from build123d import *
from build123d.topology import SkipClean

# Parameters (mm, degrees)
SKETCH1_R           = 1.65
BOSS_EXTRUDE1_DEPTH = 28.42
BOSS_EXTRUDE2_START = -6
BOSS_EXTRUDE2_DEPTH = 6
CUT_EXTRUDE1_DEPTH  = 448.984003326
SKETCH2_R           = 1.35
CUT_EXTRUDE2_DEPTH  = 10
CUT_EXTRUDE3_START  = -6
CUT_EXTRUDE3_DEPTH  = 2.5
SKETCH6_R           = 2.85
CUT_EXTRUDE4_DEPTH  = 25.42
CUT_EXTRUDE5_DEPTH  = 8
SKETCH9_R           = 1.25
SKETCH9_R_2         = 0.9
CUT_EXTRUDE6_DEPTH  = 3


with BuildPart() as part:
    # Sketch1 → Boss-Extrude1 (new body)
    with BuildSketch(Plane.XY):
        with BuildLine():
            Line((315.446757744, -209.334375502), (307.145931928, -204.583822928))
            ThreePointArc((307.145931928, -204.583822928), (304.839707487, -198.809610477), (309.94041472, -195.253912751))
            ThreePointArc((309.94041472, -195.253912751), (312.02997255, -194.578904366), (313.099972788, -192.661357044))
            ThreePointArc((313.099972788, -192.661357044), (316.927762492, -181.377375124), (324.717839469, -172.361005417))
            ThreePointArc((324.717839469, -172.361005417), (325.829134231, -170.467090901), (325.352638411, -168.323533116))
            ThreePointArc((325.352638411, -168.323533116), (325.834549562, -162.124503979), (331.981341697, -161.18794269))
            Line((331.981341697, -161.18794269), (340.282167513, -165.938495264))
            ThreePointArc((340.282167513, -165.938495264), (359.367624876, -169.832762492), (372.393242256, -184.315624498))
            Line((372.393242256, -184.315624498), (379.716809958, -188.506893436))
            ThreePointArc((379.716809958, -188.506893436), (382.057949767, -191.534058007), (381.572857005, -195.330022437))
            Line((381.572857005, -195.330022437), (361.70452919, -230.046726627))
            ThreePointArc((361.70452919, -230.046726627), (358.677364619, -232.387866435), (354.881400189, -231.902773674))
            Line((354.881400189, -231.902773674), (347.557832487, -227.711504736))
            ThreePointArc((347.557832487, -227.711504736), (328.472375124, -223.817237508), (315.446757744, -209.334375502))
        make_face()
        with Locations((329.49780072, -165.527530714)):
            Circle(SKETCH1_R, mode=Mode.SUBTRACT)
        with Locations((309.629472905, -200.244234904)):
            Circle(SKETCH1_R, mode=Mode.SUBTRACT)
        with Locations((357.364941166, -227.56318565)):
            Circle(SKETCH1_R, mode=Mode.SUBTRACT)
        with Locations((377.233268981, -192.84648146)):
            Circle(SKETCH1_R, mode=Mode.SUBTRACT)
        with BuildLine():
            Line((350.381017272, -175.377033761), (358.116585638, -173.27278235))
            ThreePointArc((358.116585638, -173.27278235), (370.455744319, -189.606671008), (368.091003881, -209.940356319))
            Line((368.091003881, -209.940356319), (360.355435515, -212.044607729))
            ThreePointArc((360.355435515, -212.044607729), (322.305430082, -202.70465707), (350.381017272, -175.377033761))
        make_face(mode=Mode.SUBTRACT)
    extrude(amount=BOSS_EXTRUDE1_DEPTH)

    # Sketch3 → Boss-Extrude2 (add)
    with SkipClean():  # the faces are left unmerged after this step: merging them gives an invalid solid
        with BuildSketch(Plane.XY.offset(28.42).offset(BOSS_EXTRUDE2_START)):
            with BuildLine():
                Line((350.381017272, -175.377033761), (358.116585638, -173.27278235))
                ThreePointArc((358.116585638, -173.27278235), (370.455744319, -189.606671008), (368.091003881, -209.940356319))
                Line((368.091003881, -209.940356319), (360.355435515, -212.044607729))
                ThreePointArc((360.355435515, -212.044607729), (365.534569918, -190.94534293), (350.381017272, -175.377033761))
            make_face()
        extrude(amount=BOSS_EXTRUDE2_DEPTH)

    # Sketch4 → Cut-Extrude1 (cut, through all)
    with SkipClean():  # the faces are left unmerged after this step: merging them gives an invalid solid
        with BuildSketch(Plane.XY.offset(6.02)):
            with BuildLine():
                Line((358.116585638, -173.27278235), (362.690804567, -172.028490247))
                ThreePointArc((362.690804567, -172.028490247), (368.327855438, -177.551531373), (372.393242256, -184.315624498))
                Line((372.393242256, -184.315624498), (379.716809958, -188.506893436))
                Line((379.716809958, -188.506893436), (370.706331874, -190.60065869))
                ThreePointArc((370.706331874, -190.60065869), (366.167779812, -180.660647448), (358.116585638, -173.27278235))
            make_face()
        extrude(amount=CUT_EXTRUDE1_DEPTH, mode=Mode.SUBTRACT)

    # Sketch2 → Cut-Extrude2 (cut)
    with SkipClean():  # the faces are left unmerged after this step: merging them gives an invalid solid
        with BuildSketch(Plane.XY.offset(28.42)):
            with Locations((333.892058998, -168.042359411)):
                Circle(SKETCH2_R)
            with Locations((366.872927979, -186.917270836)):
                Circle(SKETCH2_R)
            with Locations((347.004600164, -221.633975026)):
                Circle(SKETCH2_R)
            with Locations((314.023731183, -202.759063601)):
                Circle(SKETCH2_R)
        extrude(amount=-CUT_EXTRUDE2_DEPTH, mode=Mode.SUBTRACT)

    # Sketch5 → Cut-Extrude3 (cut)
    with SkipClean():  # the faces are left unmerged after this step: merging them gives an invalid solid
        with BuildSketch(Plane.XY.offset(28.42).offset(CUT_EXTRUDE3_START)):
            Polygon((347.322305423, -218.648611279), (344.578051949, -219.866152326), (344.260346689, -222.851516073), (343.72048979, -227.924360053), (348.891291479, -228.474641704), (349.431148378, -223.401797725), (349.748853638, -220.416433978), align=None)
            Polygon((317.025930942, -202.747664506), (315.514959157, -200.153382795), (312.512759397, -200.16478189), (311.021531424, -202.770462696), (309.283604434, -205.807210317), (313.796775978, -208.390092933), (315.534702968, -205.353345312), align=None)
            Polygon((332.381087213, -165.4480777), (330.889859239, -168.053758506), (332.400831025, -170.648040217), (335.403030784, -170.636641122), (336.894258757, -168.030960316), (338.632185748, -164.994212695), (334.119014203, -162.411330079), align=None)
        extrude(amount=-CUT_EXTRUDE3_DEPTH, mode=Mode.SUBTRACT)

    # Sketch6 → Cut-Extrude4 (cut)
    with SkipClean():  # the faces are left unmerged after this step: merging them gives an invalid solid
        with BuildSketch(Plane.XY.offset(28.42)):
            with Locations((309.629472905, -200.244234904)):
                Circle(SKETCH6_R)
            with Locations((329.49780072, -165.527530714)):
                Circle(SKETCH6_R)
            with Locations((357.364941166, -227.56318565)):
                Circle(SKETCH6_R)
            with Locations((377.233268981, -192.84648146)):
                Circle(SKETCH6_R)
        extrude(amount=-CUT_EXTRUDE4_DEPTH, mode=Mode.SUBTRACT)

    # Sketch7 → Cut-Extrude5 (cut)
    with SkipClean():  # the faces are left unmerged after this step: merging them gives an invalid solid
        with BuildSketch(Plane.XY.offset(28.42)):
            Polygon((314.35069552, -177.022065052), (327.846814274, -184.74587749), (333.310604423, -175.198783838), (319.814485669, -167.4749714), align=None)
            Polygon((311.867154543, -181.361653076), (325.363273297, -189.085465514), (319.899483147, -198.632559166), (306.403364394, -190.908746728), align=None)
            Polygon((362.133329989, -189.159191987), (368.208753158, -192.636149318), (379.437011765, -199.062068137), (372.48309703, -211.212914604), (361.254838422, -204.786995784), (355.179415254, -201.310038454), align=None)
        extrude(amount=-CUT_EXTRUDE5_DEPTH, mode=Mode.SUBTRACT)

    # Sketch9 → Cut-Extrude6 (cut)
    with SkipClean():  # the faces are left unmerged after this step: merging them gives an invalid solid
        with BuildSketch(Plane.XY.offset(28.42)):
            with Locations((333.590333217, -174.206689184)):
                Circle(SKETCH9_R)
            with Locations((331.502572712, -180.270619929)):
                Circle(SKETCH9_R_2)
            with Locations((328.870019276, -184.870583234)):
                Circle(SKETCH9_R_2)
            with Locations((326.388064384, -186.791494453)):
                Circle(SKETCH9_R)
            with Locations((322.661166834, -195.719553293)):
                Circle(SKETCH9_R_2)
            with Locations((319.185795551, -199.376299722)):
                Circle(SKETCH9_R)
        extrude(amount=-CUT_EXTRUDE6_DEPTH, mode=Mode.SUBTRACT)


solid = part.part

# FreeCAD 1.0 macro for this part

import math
import FreeCAD as App
import Part
import Sketcher
from FreeCAD import Vector


def add_polygon(sketch, points):
    """Adds a closed chain of lines whose ends are joined by coincident constraints."""
    first, n = sketch.GeometryCount, len(points)
    for a, b in zip(points, points[1:] + points[:1]):
        sketch.addGeometry(Part.LineSegment(App.Vector(*a, 0), App.Vector(*b, 0)), False)
    for i in range(n):
        sketch.addConstraint(Sketcher.Constraint("Coincident", first + i, 2, first + (i + 1) % n, 1))

doc = App.newDocument("Part")
body = doc.addObject("PartDesign::Body", "Body")

# Sketch on XY plane
sketch1 = body.newObject("Sketcher::SketchObject", "Sketch")
sketch1.AttachmentSupport = (doc.getObject("XY_Plane"), [""])
sketch1.MapMode = "FlatFace"
sketch1.addGeometry([
    Part.LineSegment(Vector(307.1, -204.6, 0), Vector(315.4, -209.3, 0)),  # 0
    Part.ArcOfCircle(Part.Circle(Vector(343.9, -196.8, 0), Vector(0, 0, 1), 31.1), math.radians(-156), math.radians(-83)),  # 1
    Part.LineSegment(Vector(347.6, -227.7, 0), Vector(354.9, -231.9, 0)),  # 2
    Part.ArcOfCircle(Part.Circle(Vector(357.4, -227.6, 0), Vector(0, 0, 1), 5), math.radians(-120), math.radians(-30)),  # 3
    Part.LineSegment(Vector(361.7, -230, 0), Vector(381.6, -195.3, 0)),  # 4
    Part.ArcOfCircle(Part.Circle(Vector(377.2, -192.8, 0), Vector(0, 0, 1), 5), math.radians(-30), math.radians(60)),  # 5
    Part.LineSegment(Vector(379.7, -188.5, 0), Vector(372.4, -184.3, 0)),  # 6
    Part.ArcOfCircle(Part.Circle(Vector(343.9, -196.8, 0), Vector(0, 0, 1), 31.1), math.radians(24), math.radians(97)),  # 7
    Part.LineSegment(Vector(340.3, -165.9, 0), Vector(332, -161.2, 0)),  # 8
    Part.ArcOfCircle(Part.Circle(Vector(329.5, -165.5, 0), Vector(0, 0, 1), 5), math.radians(60), math.radians(214)),  # 9
    Part.ArcOfCircle(Part.Circle(Vector(322.9, -170, 0), Vector(0, 0, 1), 3), math.radians(-52), math.radians(34)),  # 10
    Part.ArcOfCircle(Part.Circle(Vector(343.9, -196.8, 0), Vector(0, 0, 1), 31.1), math.radians(128), math.radians(172)),  # 11
    Part.ArcOfCircle(Part.Circle(Vector(310.1, -192.3, 0), Vector(0, 0, 1), 3), math.radians(-94), math.radians(-8)),  # 12
    Part.ArcOfCircle(Part.Circle(Vector(309.6, -200.2, 0), Vector(0, 0, 1), 5), math.radians(86), math.radians(240)),  # 13
    Part.Circle(Vector(357.4, -227.6, 0), Vector(0, 0, 1), 1.6),  # 14
    Part.Circle(Vector(309.6, -200.2, 0), Vector(0, 0, 1), 1.6),  # 15
    Part.Circle(Vector(377.2, -192.8, 0), Vector(0, 0, 1), 1.6),  # 16
    Part.LineSegment(Vector(350.4, -175.4, 0), Vector(358.1, -173.3, 0)),  # 17
    Part.ArcOfCircle(Part.Circle(Vector(343.9, -196.8, 0), Vector(0, 0, 1), 27.5), math.radians(-28), math.radians(59)),  # 18
    Part.LineSegment(Vector(368.1, -209.9, 0), Vector(360.4, -212, 0)),  # 19
    Part.ArcOfCircle(Part.Circle(Vector(343.9, -196.8, 0), Vector(0, 0, 1), 22.4), math.radians(73), math.radians(317)),  # 20
    Part.Circle(Vector(329.5, -165.5, 0), Vector(0, 0, 1), 1.6),  # 21
], False)
sketch1.addConstraint([
    Sketcher.Constraint("Coincident", 0, 2, 1, 1),
    Sketcher.Constraint("Coincident", 1, 2, 2, 1),
    Sketcher.Constraint("Tangent", 2, 2, 3, 1),
    Sketcher.Constraint("Tangent", 3, 2, 4, 1),
    Sketcher.Constraint("Tangent", 4, 2, 5, 1),
    Sketcher.Constraint("Tangent", 5, 2, 6, 1),
    Sketcher.Constraint("Coincident", 6, 2, 7, 1),
    Sketcher.Constraint("Coincident", 7, 2, 8, 1),
    Sketcher.Constraint("Tangent", 8, 2, 9, 1),
    Sketcher.Constraint("Tangent", 9, 2, 10, 2),
    Sketcher.Constraint("Tangent", 10, 1, 11, 1),
    Sketcher.Constraint("Tangent", 11, 2, 12, 2),
    Sketcher.Constraint("Tangent", 12, 1, 13, 1),
    Sketcher.Constraint("Tangent", 13, 2, 0, 1),
    Sketcher.Constraint("Coincident", 17, 2, 18, 2),
    Sketcher.Constraint("Coincident", 18, 1, 19, 1),
    Sketcher.Constraint("Coincident", 19, 2, 20, 2),
    Sketcher.Constraint("Coincident", 20, 1, 17, 1),
    Sketcher.Constraint("Coincident", 7, 3, 1, 3),
    Sketcher.Constraint("Coincident", 11, 3, 1, 3),
    Sketcher.Constraint("Coincident", 14, 3, 3, 3),
    Sketcher.Constraint("Coincident", 15, 3, 13, 3),
    Sketcher.Constraint("Coincident", 16, 3, 5, 3),
    Sketcher.Constraint("Coincident", 18, 3, 1, 3),
    Sketcher.Constraint("Coincident", 20, 3, 1, 3),
    Sketcher.Constraint("Coincident", 21, 3, 9, 3),
    Sketcher.Constraint("Equal", 3, 5),
    Sketcher.Constraint("Equal", 1, 7),
    Sketcher.Constraint("Equal", 5, 9),
    Sketcher.Constraint("Equal", 7, 11),
    Sketcher.Constraint("Equal", 10, 12),
    Sketcher.Constraint("Equal", 9, 13),
    Sketcher.Constraint("Equal", 14, 15),
    Sketcher.Constraint("Equal", 15, 16),
    Sketcher.Constraint("Equal", 16, 21),
    Sketcher.Constraint("Parallel", 0, 2),
    Sketcher.Constraint("Perpendicular", 2, 4),
    Sketcher.Constraint("Perpendicular", 4, 6),
    Sketcher.Constraint("Parallel", 6, 8),
    Sketcher.Constraint("Parallel", 17, 19),
    Sketcher.Constraint("Equal", 2, 6),
    Sketcher.Constraint("Equal", 0, 8),
    Sketcher.Constraint("Equal", 17, 19),
    Sketcher.Constraint("Radius", 3, 5.0),
    Sketcher.Constraint("Radius", 10, 3.0),
    Sketcher.Constraint("Diameter", 14, 3.3),
    Sketcher.Constraint("Radius", 1, 31.1),
    Sketcher.Constraint("Radius", 18, 27.5),
    Sketcher.Constraint("Radius", 20, 22.4),
    Sketcher.Constraint("Distance", 4, 40.0),
    Sketcher.Constraint("DistanceX", -1, 1, 1, 3, 343.92),
    Sketcher.Constraint("DistanceY", 1, 3, -1, 1, 196.825),
    Sketcher.Constraint("DistanceX", -1, 1, 9, 3, 329.497801),
    Sketcher.Constraint("DistanceX", -1, 1, 2, 2, 354.8814),
    Sketcher.Constraint("DistanceX", 10, 3, 3, 3, 34.4994),
    Sketcher.Constraint("DistanceY", 13, 3, 10, 3, 30.2431),
    Sketcher.Constraint("DistanceY", 10, 3, 9, 2, 1.677601),
    Sketcher.Constraint("DistanceY", 16, 3, 17, 2, 19.573699),
    Sketcher.Constraint("DistanceY", 3, 3, 18, 1, 17.622829),
])
pad1 = body.newObject("PartDesign::Pad", "Pad")
pad1.Profile = sketch1
pad1.Length = 28.42

# Sketch on XY plane
sketch2 = body.newObject("Sketcher::SketchObject", "Sketch001")
sketch2.AttachmentSupport = (doc.getObject("XY_Plane"), [""])
sketch2.MapMode = "FlatFace"
sketch2.AttachmentOffset = App.Placement(Vector(0, 0, 22.42), App.Rotation())
sketch2.addGeometry([
    Part.LineSegment(Vector(358, -173, 0), Vector(350, -175, 0)),
    Part.ArcOfCircle(Part.Circle(Vector(344, -197, 0), Vector(0, 0, 1), 22), math.radians(-43), math.radians(73)),
    Part.LineSegment(Vector(360, -212, 0), Vector(368, -210, 0)),
    Part.ArcOfCircle(Part.Circle(Vector(344, -197, 0), Vector(0, 0, 1), 28), math.radians(-28), math.radians(59)),
], False)
sketch2.addConstraint([
    Sketcher.Constraint("Coincident", 0, 2, 1, 2),
    Sketcher.Constraint("Coincident", 1, 1, 2, 1),
    Sketcher.Constraint("Coincident", 2, 2, 3, 1),
    Sketcher.Constraint("Coincident", 3, 2, 0, 1),
    Sketcher.Constraint("Coincident", 3, 3, 1, 3),
    Sketcher.Constraint("Parallel", 0, 2),
    Sketcher.Constraint("Equal", 0, 2),
    Sketcher.Constraint("Radius", 1, 22.4),
    Sketcher.Constraint("Radius", 3, 27.5),
    Sketcher.Constraint("DistanceX", -1, 1, 1, 3, 343.92),
    Sketcher.Constraint("DistanceY", 1, 3, -1, 1, 196.825),
    Sketcher.Constraint("DistanceX", 0, 2, 1, 1, 9.974418),
    Sketcher.Constraint("DistanceX", 1, 1, 2, 2, 7.735568),
])
pad2 = body.newObject("PartDesign::Pad", "Pad001")
pad2.Profile = sketch2
pad2.Length = 6

# Sketch on XY plane
sketch3 = body.newObject("Sketcher::SketchObject", "Sketch002")
sketch3.AttachmentSupport = (doc.getObject("XY_Plane"), [""])
sketch3.MapMode = "FlatFace"
sketch3.AttachmentOffset = App.Placement(Vector(0, 0, 6.02), App.Rotation())
sketch3.addGeometry([
    Part.LineSegment(Vector(362.7, -172, 0), Vector(358.1, -173.3, 0)),  # 0
    Part.ArcOfCircle(Part.Circle(Vector(343.9, -196.8, 0), Vector(0, 0, 1), 27.5), math.radians(13), math.radians(59)),  # 1
    Part.LineSegment(Vector(370.7, -190.6, 0), Vector(379.7, -188.5, 0)),  # 2
    Part.LineSegment(Vector(379.7, -188.5, 0), Vector(372.4, -184.3, 0)),  # 3
    Part.ArcOfCircle(Part.Circle(Vector(343.9, -196.8, 0), Vector(0, 0, 1), 31.1), math.radians(24), math.radians(53)),  # 4
], False)
sketch3.addConstraint([
    Sketcher.Constraint("Coincident", 0, 2, 1, 2),
    Sketcher.Constraint("Coincident", 1, 1, 2, 1),
    Sketcher.Constraint("Coincident", 2, 2, 3, 1),
    Sketcher.Constraint("Coincident", 3, 2, 4, 1),
    Sketcher.Constraint("Coincident", 4, 2, 0, 1),
    Sketcher.Constraint("Coincident", 4, 3, 1, 3),
    Sketcher.Constraint("Radius", 1, 27.5),
    Sketcher.Constraint("Radius", 4, 31.1),
    Sketcher.Constraint("DistanceX", -1, 1, 1, 3, 343.92),
    Sketcher.Constraint("DistanceY", 1, 3, -1, 1, 196.825),
    Sketcher.Constraint("Distance", 3, 8.438091),
    Sketcher.Constraint("DistanceX", -1, 1, 1, 1, 370.706332),
    Sketcher.Constraint("DistanceX", -1, 1, 2, 2, 379.71681),
    Sketcher.Constraint("DistanceY", 4, 2, -1, 1, 172.02849),
    Sketcher.Constraint("DistanceY", 2, 2, 0, 2, 15.234111),
    Sketcher.Constraint("DistanceX", 1, 1, 3, 2, 1.68691),
])
pocket1 = body.newObject("PartDesign::Pocket", "Pocket")
pocket1.Profile = sketch3
pocket1.Type = "ThroughAll"
pocket1.Reversed = True

# Sketch on XY plane
sketch4 = body.newObject("Sketcher::SketchObject", "Sketch003")
sketch4.AttachmentSupport = (doc.getObject("XY_Plane"), [""])
sketch4.MapMode = "FlatFace"
sketch4.AttachmentOffset = App.Placement(Vector(0, 0, 28.42), App.Rotation())
sketch4.addGeometry([
    Part.Circle(Vector(333.9, -168, 0), Vector(0, 0, 1), 1.4),
    Part.Circle(Vector(366.9, -186.9, 0), Vector(0, 0, 1), 1.4),
    Part.Circle(Vector(347, -221.6, 0), Vector(0, 0, 1), 1.4),
    Part.Circle(Vector(314, -202.8, 0), Vector(0, 0, 1), 1.4),
], False)
sketch4.addConstraint([
    Sketcher.Constraint("Equal", 0, 1),
    Sketcher.Constraint("Equal", 1, 2),
    Sketcher.Constraint("Equal", 2, 3),
    Sketcher.Constraint("Diameter", 0, 2.7),
    Sketcher.Constraint("DistanceX", -1, 1, 2, 3, 347.0046),
    Sketcher.Constraint("DistanceX", -1, 1, 0, 3, 333.892059),
    Sketcher.Constraint("DistanceY", 0, 3, -1, 1, 168.042359),
    Sketcher.Constraint("DistanceY", 1, 3, -1, 1, 186.917271),
    Sketcher.Constraint("DistanceX", -1, 1, 3, 3, 314.023731),
    Sketcher.Constraint("DistanceX", 0, 3, 1, 3, 32.980869),
    Sketcher.Constraint("DistanceY", 2, 3, 3, 3, 18.874911),
    Sketcher.Constraint("DistanceY", 2, 3, -1, 1, 221.633975),
])
pocket2 = body.newObject("PartDesign::Pocket", "Pocket001")
pocket2.Profile = sketch4
pocket2.Length = 10

# Sketch on XY plane
sketch5 = body.newObject("Sketcher::SketchObject", "Sketch004")
sketch5.AttachmentSupport = (doc.getObject("XY_Plane"), [""])
sketch5.MapMode = "FlatFace"
sketch5.AttachmentOffset = App.Placement(Vector(0, 0, 22.42), App.Rotation())
add_polygon(sketch5, [(347.3, -218.6), (344.6, -219.9), (344.3, -222.9), (343.7, -227.9), (348.9, -228.5), (349.4, -223.4), (349.7, -220.4)])  # lines 0-6
add_polygon(sketch5, [(317, -202.7), (315.5, -200.2), (312.5, -200.2), (311, -202.8), (309.3, -205.8), (313.8, -208.4), (315.5, -205.4)])  # lines 7-13
add_polygon(sketch5, [(332.4, -165.4), (330.9, -168.1), (332.4, -170.6), (335.4, -170.6), (336.9, -168), (338.6, -165), (334.1, -162.4)])  # lines 14-20
sketch5.addConstraint([
    Sketcher.Constraint("Parallel", 1, 2),
    Sketcher.Constraint("Perpendicular", 2, 3),
    Sketcher.Constraint("Perpendicular", 3, 4),
    Sketcher.Constraint("Parallel", 4, 5),
    Sketcher.Constraint("Parallel", 9, 10),
    Sketcher.Constraint("Perpendicular", 10, 11),
    Sketcher.Constraint("Perpendicular", 11, 12),
    Sketcher.Constraint("Parallel", 12, 13),
    Sketcher.Constraint("Parallel", 13, 14),
    Sketcher.Constraint("Parallel", 7, 15),
    Sketcher.Constraint("Parallel", 8, 16),
    Sketcher.Constraint("Parallel", 14, 17),
    Sketcher.Constraint("Parallel", 17, 18),
    Sketcher.Constraint("Perpendicular", 18, 19),
    Sketcher.Constraint("Perpendicular", 19, 20),
    Sketcher.Constraint("Equal", 0, 1),
    Sketcher.Constraint("Equal", 2, 4),
    Sketcher.Constraint("Equal", 1, 5),
    Sketcher.Constraint("Equal", 5, 6),
    Sketcher.Constraint("Equal", 6, 7),
    Sketcher.Constraint("Equal", 7, 8),
    Sketcher.Constraint("Equal", 8, 9),
    Sketcher.Constraint("Equal", 3, 11),
    Sketcher.Constraint("Equal", 10, 12),
    Sketcher.Constraint("Equal", 9, 13),
    Sketcher.Constraint("Equal", 13, 14),
    Sketcher.Constraint("Equal", 14, 15),
    Sketcher.Constraint("Equal", 15, 16),
    Sketcher.Constraint("Equal", 16, 17),
    Sketcher.Constraint("Equal", 12, 18),
    Sketcher.Constraint("Distance", 3, 5.2),
    Sketcher.Constraint("DistanceX", 2, 2, 3, 2, 5.170802),
    Sketcher.Constraint("DistanceX", 8, 2, 7, 2, 3.0022),
    Sketcher.Constraint("DistanceY", 8, 2, 7, 2, 0.011399),
    Sketcher.Constraint("DistanceX", 10, 2, 12, 2, 6.251099),
    Sketcher.Constraint("DistanceX", 7, 2, 14, 2, 15.3749),
    Sketcher.Constraint("Distance", 2, 5.101489),
    Sketcher.Constraint("DistanceX", -1, 1, 0, 2, 344.578052),
    Sketcher.Constraint("DistanceY", 2, 2, -1, 1, 227.92436),
    Sketcher.Constraint("DistanceX", -1, 1, 7, 2, 315.514959),
    Sketcher.Constraint("DistanceY", 8, 2, -1, 1, 200.164782),
    Sketcher.Constraint("DistanceY", 14, 2, -1, 1, 168.053759),
])
pocket3 = body.newObject("PartDesign::Pocket", "Pocket002")
pocket3.Profile = sketch5
pocket3.Length = 2.5

# Sketch on XY plane
sketch6 = body.newObject("Sketcher::SketchObject", "Sketch005")
sketch6.AttachmentSupport = (doc.getObject("XY_Plane"), [""])
sketch6.MapMode = "FlatFace"
sketch6.AttachmentOffset = App.Placement(Vector(0, 0, 28.42), App.Rotation())
sketch6.addGeometry([
    Part.Circle(Vector(309.6, -200.2, 0), Vector(0, 0, 1), 2.9),
    Part.Circle(Vector(329.5, -165.5, 0), Vector(0, 0, 1), 2.9),
    Part.Circle(Vector(357.4, -227.6, 0), Vector(0, 0, 1), 2.9),
    Part.Circle(Vector(377.2, -192.8, 0), Vector(0, 0, 1), 2.9),
], False)
sketch6.addConstraint([
    Sketcher.Constraint("Equal", 0, 1),
    Sketcher.Constraint("Equal", 1, 2),
    Sketcher.Constraint("Equal", 2, 3),
    Sketcher.Constraint("Diameter", 0, 5.7),
    Sketcher.Constraint("DistanceX", -1, 1, 1, 3, 329.497801),
    Sketcher.Constraint("DistanceY", 1, 3, -1, 1, 165.527531),
    Sketcher.Constraint("DistanceX", -1, 1, 2, 3, 357.364941),
    Sketcher.Constraint("DistanceX", -1, 1, 3, 3, 377.233269),
    Sketcher.Constraint("DistanceY", 3, 3, -1, 1, 192.846481),
    Sketcher.Constraint("DistanceX", 0, 3, 2, 3, 47.735468),
    Sketcher.Constraint("DistanceY", 2, 3, 0, 3, 27.318951),
    Sketcher.Constraint("DistanceY", 0, 3, -1, 1, 200.244235),
])
pocket4 = body.newObject("PartDesign::Pocket", "Pocket003")
pocket4.Profile = sketch6
pocket4.Length = 25.42

# Sketch on XY plane
sketch7 = body.newObject("Sketcher::SketchObject", "Sketch006")
sketch7.AttachmentSupport = (doc.getObject("XY_Plane"), [""])
sketch7.MapMode = "FlatFace"
sketch7.AttachmentOffset = App.Placement(Vector(0, 0, 28.42), App.Rotation())
add_polygon(sketch7, [(314, -177), (328, -185), (333, -175), (320, -167)])  # lines 0-3
add_polygon(sketch7, [(325, -189), (312, -181), (306, -191), (320, -199)])  # lines 4-7
add_polygon(sketch7, [(368, -193), (362, -189), (355, -201), (361, -205), (372, -211), (379, -199)])  # lines 8-13
sketch7.addConstraint([
    Sketcher.Constraint("Perpendicular", 0, 1),
    Sketcher.Constraint("Perpendicular", 1, 2),
    Sketcher.Constraint("Perpendicular", 2, 3),
    Sketcher.Constraint("Perpendicular", 3, 4),
    Sketcher.Constraint("Perpendicular", 4, 5),
    Sketcher.Constraint("Perpendicular", 5, 6),
    Sketcher.Constraint("Perpendicular", 6, 7),
    Sketcher.Constraint("Perpendicular", 7, 8),
    Sketcher.Constraint("Perpendicular", 8, 9),
    Sketcher.Constraint("Perpendicular", 9, 10),
    Sketcher.Constraint("Parallel", 10, 11),
    Sketcher.Constraint("Perpendicular", 11, 12),
    Sketcher.Constraint("Perpendicular", 12, 13),
    Sketcher.Constraint("Equal", 2, 4),
    Sketcher.Constraint("Equal", 3, 5),
    Sketcher.Constraint("Equal", 8, 10),
    Sketcher.Constraint("Distance", 1, 11.0),
    Sketcher.Constraint("Distance", 8, 7.0),
    Sketcher.Constraint("Distance", 9, 14.0),
    Sketcher.Constraint("Distance", 0, 15.55),
    Sketcher.Constraint("DistanceY", 7, 2, 3, 2, 12.0634),
    Sketcher.Constraint("DistanceX", 0, 2, 9, 2, 27.332601),
    Sketcher.Constraint("Distance", 11, 12.93701),
    Sketcher.Constraint("DistanceY", 2, 2, -1, 1, 167.474971),
    Sketcher.Constraint("DistanceY", 6, 2, -1, 1, 198.632559),
    Sketcher.Constraint("DistanceX", -1, 1, 8, 2, 362.13333),
    Sketcher.Constraint("DistanceY", 8, 2, -1, 1, 189.159192),
    Sketcher.Constraint("DistanceX", 4, 2, 3, 2, 2.483541),
])
pocket5 = body.newObject("PartDesign::Pocket", "Pocket004")
pocket5.Profile = sketch7
pocket5.Length = 8

# Sketch on XY plane
sketch8 = body.newObject("Sketcher::SketchObject", "Sketch007")
sketch8.AttachmentSupport = (doc.getObject("XY_Plane"), [""])
sketch8.MapMode = "FlatFace"
sketch8.AttachmentOffset = App.Placement(Vector(0, 0, 28.42), App.Rotation())
sketch8.addGeometry([
    Part.Circle(Vector(333.6, -174.2, 0), Vector(0, 0, 1), 1.2),  # 0
    Part.Circle(Vector(331.5, -180.3, 0), Vector(0, 0, 1), 0.9),  # 1
    Part.Circle(Vector(328.9, -184.9, 0), Vector(0, 0, 1), 0.9),  # 2
    Part.Circle(Vector(326.4, -186.8, 0), Vector(0, 0, 1), 1.2),  # 3
    Part.Circle(Vector(322.7, -195.7, 0), Vector(0, 0, 1), 0.9),  # 4
    Part.Circle(Vector(319.2, -199.4, 0), Vector(0, 0, 1), 1.2),  # 5
], False)
sketch8.addConstraint([
    Sketcher.Constraint("Equal", 1, 2),
    Sketcher.Constraint("Equal", 0, 3),
    Sketcher.Constraint("Equal", 2, 4),
    Sketcher.Constraint("Equal", 3, 5),
    Sketcher.Constraint("Diameter", 0, 2.5),
    Sketcher.Constraint("Diameter", 1, 1.8),
    Sketcher.Constraint("DistanceY", 5, 3, -1, 1, 199.3763),
    Sketcher.Constraint("DistanceY", 0, 3, -1, 1, 174.206689),
    Sketcher.Constraint("DistanceY", 1, 3, -1, 1, 180.27062),
    Sketcher.Constraint("DistanceX", -1, 1, 2, 3, 328.870019),
    Sketcher.Constraint("DistanceX", 1, 3, 0, 3, 2.087761),
    Sketcher.Constraint("DistanceY", 3, 3, 2, 3, 1.920911),
    Sketcher.Constraint("DistanceX", 3, 3, 1, 3, 5.114508),
    Sketcher.Constraint("DistanceY", 4, 3, 3, 3, 8.928059),
    Sketcher.Constraint("DistanceX", 5, 3, 4, 3, 3.475371),
    Sketcher.Constraint("DistanceX", 5, 3, 3, 3, 7.202269),
    Sketcher.Constraint("DistanceX", -1, 1, 0, 3, 333.590333),
    Sketcher.Constraint("DistanceY", 2, 3, -1, 1, 184.870583),
])
pocket6 = body.newObject("PartDesign::Pocket", "Pocket005")
pocket6.Profile = sketch8
pocket6.Length = 3

doc.recompute()
